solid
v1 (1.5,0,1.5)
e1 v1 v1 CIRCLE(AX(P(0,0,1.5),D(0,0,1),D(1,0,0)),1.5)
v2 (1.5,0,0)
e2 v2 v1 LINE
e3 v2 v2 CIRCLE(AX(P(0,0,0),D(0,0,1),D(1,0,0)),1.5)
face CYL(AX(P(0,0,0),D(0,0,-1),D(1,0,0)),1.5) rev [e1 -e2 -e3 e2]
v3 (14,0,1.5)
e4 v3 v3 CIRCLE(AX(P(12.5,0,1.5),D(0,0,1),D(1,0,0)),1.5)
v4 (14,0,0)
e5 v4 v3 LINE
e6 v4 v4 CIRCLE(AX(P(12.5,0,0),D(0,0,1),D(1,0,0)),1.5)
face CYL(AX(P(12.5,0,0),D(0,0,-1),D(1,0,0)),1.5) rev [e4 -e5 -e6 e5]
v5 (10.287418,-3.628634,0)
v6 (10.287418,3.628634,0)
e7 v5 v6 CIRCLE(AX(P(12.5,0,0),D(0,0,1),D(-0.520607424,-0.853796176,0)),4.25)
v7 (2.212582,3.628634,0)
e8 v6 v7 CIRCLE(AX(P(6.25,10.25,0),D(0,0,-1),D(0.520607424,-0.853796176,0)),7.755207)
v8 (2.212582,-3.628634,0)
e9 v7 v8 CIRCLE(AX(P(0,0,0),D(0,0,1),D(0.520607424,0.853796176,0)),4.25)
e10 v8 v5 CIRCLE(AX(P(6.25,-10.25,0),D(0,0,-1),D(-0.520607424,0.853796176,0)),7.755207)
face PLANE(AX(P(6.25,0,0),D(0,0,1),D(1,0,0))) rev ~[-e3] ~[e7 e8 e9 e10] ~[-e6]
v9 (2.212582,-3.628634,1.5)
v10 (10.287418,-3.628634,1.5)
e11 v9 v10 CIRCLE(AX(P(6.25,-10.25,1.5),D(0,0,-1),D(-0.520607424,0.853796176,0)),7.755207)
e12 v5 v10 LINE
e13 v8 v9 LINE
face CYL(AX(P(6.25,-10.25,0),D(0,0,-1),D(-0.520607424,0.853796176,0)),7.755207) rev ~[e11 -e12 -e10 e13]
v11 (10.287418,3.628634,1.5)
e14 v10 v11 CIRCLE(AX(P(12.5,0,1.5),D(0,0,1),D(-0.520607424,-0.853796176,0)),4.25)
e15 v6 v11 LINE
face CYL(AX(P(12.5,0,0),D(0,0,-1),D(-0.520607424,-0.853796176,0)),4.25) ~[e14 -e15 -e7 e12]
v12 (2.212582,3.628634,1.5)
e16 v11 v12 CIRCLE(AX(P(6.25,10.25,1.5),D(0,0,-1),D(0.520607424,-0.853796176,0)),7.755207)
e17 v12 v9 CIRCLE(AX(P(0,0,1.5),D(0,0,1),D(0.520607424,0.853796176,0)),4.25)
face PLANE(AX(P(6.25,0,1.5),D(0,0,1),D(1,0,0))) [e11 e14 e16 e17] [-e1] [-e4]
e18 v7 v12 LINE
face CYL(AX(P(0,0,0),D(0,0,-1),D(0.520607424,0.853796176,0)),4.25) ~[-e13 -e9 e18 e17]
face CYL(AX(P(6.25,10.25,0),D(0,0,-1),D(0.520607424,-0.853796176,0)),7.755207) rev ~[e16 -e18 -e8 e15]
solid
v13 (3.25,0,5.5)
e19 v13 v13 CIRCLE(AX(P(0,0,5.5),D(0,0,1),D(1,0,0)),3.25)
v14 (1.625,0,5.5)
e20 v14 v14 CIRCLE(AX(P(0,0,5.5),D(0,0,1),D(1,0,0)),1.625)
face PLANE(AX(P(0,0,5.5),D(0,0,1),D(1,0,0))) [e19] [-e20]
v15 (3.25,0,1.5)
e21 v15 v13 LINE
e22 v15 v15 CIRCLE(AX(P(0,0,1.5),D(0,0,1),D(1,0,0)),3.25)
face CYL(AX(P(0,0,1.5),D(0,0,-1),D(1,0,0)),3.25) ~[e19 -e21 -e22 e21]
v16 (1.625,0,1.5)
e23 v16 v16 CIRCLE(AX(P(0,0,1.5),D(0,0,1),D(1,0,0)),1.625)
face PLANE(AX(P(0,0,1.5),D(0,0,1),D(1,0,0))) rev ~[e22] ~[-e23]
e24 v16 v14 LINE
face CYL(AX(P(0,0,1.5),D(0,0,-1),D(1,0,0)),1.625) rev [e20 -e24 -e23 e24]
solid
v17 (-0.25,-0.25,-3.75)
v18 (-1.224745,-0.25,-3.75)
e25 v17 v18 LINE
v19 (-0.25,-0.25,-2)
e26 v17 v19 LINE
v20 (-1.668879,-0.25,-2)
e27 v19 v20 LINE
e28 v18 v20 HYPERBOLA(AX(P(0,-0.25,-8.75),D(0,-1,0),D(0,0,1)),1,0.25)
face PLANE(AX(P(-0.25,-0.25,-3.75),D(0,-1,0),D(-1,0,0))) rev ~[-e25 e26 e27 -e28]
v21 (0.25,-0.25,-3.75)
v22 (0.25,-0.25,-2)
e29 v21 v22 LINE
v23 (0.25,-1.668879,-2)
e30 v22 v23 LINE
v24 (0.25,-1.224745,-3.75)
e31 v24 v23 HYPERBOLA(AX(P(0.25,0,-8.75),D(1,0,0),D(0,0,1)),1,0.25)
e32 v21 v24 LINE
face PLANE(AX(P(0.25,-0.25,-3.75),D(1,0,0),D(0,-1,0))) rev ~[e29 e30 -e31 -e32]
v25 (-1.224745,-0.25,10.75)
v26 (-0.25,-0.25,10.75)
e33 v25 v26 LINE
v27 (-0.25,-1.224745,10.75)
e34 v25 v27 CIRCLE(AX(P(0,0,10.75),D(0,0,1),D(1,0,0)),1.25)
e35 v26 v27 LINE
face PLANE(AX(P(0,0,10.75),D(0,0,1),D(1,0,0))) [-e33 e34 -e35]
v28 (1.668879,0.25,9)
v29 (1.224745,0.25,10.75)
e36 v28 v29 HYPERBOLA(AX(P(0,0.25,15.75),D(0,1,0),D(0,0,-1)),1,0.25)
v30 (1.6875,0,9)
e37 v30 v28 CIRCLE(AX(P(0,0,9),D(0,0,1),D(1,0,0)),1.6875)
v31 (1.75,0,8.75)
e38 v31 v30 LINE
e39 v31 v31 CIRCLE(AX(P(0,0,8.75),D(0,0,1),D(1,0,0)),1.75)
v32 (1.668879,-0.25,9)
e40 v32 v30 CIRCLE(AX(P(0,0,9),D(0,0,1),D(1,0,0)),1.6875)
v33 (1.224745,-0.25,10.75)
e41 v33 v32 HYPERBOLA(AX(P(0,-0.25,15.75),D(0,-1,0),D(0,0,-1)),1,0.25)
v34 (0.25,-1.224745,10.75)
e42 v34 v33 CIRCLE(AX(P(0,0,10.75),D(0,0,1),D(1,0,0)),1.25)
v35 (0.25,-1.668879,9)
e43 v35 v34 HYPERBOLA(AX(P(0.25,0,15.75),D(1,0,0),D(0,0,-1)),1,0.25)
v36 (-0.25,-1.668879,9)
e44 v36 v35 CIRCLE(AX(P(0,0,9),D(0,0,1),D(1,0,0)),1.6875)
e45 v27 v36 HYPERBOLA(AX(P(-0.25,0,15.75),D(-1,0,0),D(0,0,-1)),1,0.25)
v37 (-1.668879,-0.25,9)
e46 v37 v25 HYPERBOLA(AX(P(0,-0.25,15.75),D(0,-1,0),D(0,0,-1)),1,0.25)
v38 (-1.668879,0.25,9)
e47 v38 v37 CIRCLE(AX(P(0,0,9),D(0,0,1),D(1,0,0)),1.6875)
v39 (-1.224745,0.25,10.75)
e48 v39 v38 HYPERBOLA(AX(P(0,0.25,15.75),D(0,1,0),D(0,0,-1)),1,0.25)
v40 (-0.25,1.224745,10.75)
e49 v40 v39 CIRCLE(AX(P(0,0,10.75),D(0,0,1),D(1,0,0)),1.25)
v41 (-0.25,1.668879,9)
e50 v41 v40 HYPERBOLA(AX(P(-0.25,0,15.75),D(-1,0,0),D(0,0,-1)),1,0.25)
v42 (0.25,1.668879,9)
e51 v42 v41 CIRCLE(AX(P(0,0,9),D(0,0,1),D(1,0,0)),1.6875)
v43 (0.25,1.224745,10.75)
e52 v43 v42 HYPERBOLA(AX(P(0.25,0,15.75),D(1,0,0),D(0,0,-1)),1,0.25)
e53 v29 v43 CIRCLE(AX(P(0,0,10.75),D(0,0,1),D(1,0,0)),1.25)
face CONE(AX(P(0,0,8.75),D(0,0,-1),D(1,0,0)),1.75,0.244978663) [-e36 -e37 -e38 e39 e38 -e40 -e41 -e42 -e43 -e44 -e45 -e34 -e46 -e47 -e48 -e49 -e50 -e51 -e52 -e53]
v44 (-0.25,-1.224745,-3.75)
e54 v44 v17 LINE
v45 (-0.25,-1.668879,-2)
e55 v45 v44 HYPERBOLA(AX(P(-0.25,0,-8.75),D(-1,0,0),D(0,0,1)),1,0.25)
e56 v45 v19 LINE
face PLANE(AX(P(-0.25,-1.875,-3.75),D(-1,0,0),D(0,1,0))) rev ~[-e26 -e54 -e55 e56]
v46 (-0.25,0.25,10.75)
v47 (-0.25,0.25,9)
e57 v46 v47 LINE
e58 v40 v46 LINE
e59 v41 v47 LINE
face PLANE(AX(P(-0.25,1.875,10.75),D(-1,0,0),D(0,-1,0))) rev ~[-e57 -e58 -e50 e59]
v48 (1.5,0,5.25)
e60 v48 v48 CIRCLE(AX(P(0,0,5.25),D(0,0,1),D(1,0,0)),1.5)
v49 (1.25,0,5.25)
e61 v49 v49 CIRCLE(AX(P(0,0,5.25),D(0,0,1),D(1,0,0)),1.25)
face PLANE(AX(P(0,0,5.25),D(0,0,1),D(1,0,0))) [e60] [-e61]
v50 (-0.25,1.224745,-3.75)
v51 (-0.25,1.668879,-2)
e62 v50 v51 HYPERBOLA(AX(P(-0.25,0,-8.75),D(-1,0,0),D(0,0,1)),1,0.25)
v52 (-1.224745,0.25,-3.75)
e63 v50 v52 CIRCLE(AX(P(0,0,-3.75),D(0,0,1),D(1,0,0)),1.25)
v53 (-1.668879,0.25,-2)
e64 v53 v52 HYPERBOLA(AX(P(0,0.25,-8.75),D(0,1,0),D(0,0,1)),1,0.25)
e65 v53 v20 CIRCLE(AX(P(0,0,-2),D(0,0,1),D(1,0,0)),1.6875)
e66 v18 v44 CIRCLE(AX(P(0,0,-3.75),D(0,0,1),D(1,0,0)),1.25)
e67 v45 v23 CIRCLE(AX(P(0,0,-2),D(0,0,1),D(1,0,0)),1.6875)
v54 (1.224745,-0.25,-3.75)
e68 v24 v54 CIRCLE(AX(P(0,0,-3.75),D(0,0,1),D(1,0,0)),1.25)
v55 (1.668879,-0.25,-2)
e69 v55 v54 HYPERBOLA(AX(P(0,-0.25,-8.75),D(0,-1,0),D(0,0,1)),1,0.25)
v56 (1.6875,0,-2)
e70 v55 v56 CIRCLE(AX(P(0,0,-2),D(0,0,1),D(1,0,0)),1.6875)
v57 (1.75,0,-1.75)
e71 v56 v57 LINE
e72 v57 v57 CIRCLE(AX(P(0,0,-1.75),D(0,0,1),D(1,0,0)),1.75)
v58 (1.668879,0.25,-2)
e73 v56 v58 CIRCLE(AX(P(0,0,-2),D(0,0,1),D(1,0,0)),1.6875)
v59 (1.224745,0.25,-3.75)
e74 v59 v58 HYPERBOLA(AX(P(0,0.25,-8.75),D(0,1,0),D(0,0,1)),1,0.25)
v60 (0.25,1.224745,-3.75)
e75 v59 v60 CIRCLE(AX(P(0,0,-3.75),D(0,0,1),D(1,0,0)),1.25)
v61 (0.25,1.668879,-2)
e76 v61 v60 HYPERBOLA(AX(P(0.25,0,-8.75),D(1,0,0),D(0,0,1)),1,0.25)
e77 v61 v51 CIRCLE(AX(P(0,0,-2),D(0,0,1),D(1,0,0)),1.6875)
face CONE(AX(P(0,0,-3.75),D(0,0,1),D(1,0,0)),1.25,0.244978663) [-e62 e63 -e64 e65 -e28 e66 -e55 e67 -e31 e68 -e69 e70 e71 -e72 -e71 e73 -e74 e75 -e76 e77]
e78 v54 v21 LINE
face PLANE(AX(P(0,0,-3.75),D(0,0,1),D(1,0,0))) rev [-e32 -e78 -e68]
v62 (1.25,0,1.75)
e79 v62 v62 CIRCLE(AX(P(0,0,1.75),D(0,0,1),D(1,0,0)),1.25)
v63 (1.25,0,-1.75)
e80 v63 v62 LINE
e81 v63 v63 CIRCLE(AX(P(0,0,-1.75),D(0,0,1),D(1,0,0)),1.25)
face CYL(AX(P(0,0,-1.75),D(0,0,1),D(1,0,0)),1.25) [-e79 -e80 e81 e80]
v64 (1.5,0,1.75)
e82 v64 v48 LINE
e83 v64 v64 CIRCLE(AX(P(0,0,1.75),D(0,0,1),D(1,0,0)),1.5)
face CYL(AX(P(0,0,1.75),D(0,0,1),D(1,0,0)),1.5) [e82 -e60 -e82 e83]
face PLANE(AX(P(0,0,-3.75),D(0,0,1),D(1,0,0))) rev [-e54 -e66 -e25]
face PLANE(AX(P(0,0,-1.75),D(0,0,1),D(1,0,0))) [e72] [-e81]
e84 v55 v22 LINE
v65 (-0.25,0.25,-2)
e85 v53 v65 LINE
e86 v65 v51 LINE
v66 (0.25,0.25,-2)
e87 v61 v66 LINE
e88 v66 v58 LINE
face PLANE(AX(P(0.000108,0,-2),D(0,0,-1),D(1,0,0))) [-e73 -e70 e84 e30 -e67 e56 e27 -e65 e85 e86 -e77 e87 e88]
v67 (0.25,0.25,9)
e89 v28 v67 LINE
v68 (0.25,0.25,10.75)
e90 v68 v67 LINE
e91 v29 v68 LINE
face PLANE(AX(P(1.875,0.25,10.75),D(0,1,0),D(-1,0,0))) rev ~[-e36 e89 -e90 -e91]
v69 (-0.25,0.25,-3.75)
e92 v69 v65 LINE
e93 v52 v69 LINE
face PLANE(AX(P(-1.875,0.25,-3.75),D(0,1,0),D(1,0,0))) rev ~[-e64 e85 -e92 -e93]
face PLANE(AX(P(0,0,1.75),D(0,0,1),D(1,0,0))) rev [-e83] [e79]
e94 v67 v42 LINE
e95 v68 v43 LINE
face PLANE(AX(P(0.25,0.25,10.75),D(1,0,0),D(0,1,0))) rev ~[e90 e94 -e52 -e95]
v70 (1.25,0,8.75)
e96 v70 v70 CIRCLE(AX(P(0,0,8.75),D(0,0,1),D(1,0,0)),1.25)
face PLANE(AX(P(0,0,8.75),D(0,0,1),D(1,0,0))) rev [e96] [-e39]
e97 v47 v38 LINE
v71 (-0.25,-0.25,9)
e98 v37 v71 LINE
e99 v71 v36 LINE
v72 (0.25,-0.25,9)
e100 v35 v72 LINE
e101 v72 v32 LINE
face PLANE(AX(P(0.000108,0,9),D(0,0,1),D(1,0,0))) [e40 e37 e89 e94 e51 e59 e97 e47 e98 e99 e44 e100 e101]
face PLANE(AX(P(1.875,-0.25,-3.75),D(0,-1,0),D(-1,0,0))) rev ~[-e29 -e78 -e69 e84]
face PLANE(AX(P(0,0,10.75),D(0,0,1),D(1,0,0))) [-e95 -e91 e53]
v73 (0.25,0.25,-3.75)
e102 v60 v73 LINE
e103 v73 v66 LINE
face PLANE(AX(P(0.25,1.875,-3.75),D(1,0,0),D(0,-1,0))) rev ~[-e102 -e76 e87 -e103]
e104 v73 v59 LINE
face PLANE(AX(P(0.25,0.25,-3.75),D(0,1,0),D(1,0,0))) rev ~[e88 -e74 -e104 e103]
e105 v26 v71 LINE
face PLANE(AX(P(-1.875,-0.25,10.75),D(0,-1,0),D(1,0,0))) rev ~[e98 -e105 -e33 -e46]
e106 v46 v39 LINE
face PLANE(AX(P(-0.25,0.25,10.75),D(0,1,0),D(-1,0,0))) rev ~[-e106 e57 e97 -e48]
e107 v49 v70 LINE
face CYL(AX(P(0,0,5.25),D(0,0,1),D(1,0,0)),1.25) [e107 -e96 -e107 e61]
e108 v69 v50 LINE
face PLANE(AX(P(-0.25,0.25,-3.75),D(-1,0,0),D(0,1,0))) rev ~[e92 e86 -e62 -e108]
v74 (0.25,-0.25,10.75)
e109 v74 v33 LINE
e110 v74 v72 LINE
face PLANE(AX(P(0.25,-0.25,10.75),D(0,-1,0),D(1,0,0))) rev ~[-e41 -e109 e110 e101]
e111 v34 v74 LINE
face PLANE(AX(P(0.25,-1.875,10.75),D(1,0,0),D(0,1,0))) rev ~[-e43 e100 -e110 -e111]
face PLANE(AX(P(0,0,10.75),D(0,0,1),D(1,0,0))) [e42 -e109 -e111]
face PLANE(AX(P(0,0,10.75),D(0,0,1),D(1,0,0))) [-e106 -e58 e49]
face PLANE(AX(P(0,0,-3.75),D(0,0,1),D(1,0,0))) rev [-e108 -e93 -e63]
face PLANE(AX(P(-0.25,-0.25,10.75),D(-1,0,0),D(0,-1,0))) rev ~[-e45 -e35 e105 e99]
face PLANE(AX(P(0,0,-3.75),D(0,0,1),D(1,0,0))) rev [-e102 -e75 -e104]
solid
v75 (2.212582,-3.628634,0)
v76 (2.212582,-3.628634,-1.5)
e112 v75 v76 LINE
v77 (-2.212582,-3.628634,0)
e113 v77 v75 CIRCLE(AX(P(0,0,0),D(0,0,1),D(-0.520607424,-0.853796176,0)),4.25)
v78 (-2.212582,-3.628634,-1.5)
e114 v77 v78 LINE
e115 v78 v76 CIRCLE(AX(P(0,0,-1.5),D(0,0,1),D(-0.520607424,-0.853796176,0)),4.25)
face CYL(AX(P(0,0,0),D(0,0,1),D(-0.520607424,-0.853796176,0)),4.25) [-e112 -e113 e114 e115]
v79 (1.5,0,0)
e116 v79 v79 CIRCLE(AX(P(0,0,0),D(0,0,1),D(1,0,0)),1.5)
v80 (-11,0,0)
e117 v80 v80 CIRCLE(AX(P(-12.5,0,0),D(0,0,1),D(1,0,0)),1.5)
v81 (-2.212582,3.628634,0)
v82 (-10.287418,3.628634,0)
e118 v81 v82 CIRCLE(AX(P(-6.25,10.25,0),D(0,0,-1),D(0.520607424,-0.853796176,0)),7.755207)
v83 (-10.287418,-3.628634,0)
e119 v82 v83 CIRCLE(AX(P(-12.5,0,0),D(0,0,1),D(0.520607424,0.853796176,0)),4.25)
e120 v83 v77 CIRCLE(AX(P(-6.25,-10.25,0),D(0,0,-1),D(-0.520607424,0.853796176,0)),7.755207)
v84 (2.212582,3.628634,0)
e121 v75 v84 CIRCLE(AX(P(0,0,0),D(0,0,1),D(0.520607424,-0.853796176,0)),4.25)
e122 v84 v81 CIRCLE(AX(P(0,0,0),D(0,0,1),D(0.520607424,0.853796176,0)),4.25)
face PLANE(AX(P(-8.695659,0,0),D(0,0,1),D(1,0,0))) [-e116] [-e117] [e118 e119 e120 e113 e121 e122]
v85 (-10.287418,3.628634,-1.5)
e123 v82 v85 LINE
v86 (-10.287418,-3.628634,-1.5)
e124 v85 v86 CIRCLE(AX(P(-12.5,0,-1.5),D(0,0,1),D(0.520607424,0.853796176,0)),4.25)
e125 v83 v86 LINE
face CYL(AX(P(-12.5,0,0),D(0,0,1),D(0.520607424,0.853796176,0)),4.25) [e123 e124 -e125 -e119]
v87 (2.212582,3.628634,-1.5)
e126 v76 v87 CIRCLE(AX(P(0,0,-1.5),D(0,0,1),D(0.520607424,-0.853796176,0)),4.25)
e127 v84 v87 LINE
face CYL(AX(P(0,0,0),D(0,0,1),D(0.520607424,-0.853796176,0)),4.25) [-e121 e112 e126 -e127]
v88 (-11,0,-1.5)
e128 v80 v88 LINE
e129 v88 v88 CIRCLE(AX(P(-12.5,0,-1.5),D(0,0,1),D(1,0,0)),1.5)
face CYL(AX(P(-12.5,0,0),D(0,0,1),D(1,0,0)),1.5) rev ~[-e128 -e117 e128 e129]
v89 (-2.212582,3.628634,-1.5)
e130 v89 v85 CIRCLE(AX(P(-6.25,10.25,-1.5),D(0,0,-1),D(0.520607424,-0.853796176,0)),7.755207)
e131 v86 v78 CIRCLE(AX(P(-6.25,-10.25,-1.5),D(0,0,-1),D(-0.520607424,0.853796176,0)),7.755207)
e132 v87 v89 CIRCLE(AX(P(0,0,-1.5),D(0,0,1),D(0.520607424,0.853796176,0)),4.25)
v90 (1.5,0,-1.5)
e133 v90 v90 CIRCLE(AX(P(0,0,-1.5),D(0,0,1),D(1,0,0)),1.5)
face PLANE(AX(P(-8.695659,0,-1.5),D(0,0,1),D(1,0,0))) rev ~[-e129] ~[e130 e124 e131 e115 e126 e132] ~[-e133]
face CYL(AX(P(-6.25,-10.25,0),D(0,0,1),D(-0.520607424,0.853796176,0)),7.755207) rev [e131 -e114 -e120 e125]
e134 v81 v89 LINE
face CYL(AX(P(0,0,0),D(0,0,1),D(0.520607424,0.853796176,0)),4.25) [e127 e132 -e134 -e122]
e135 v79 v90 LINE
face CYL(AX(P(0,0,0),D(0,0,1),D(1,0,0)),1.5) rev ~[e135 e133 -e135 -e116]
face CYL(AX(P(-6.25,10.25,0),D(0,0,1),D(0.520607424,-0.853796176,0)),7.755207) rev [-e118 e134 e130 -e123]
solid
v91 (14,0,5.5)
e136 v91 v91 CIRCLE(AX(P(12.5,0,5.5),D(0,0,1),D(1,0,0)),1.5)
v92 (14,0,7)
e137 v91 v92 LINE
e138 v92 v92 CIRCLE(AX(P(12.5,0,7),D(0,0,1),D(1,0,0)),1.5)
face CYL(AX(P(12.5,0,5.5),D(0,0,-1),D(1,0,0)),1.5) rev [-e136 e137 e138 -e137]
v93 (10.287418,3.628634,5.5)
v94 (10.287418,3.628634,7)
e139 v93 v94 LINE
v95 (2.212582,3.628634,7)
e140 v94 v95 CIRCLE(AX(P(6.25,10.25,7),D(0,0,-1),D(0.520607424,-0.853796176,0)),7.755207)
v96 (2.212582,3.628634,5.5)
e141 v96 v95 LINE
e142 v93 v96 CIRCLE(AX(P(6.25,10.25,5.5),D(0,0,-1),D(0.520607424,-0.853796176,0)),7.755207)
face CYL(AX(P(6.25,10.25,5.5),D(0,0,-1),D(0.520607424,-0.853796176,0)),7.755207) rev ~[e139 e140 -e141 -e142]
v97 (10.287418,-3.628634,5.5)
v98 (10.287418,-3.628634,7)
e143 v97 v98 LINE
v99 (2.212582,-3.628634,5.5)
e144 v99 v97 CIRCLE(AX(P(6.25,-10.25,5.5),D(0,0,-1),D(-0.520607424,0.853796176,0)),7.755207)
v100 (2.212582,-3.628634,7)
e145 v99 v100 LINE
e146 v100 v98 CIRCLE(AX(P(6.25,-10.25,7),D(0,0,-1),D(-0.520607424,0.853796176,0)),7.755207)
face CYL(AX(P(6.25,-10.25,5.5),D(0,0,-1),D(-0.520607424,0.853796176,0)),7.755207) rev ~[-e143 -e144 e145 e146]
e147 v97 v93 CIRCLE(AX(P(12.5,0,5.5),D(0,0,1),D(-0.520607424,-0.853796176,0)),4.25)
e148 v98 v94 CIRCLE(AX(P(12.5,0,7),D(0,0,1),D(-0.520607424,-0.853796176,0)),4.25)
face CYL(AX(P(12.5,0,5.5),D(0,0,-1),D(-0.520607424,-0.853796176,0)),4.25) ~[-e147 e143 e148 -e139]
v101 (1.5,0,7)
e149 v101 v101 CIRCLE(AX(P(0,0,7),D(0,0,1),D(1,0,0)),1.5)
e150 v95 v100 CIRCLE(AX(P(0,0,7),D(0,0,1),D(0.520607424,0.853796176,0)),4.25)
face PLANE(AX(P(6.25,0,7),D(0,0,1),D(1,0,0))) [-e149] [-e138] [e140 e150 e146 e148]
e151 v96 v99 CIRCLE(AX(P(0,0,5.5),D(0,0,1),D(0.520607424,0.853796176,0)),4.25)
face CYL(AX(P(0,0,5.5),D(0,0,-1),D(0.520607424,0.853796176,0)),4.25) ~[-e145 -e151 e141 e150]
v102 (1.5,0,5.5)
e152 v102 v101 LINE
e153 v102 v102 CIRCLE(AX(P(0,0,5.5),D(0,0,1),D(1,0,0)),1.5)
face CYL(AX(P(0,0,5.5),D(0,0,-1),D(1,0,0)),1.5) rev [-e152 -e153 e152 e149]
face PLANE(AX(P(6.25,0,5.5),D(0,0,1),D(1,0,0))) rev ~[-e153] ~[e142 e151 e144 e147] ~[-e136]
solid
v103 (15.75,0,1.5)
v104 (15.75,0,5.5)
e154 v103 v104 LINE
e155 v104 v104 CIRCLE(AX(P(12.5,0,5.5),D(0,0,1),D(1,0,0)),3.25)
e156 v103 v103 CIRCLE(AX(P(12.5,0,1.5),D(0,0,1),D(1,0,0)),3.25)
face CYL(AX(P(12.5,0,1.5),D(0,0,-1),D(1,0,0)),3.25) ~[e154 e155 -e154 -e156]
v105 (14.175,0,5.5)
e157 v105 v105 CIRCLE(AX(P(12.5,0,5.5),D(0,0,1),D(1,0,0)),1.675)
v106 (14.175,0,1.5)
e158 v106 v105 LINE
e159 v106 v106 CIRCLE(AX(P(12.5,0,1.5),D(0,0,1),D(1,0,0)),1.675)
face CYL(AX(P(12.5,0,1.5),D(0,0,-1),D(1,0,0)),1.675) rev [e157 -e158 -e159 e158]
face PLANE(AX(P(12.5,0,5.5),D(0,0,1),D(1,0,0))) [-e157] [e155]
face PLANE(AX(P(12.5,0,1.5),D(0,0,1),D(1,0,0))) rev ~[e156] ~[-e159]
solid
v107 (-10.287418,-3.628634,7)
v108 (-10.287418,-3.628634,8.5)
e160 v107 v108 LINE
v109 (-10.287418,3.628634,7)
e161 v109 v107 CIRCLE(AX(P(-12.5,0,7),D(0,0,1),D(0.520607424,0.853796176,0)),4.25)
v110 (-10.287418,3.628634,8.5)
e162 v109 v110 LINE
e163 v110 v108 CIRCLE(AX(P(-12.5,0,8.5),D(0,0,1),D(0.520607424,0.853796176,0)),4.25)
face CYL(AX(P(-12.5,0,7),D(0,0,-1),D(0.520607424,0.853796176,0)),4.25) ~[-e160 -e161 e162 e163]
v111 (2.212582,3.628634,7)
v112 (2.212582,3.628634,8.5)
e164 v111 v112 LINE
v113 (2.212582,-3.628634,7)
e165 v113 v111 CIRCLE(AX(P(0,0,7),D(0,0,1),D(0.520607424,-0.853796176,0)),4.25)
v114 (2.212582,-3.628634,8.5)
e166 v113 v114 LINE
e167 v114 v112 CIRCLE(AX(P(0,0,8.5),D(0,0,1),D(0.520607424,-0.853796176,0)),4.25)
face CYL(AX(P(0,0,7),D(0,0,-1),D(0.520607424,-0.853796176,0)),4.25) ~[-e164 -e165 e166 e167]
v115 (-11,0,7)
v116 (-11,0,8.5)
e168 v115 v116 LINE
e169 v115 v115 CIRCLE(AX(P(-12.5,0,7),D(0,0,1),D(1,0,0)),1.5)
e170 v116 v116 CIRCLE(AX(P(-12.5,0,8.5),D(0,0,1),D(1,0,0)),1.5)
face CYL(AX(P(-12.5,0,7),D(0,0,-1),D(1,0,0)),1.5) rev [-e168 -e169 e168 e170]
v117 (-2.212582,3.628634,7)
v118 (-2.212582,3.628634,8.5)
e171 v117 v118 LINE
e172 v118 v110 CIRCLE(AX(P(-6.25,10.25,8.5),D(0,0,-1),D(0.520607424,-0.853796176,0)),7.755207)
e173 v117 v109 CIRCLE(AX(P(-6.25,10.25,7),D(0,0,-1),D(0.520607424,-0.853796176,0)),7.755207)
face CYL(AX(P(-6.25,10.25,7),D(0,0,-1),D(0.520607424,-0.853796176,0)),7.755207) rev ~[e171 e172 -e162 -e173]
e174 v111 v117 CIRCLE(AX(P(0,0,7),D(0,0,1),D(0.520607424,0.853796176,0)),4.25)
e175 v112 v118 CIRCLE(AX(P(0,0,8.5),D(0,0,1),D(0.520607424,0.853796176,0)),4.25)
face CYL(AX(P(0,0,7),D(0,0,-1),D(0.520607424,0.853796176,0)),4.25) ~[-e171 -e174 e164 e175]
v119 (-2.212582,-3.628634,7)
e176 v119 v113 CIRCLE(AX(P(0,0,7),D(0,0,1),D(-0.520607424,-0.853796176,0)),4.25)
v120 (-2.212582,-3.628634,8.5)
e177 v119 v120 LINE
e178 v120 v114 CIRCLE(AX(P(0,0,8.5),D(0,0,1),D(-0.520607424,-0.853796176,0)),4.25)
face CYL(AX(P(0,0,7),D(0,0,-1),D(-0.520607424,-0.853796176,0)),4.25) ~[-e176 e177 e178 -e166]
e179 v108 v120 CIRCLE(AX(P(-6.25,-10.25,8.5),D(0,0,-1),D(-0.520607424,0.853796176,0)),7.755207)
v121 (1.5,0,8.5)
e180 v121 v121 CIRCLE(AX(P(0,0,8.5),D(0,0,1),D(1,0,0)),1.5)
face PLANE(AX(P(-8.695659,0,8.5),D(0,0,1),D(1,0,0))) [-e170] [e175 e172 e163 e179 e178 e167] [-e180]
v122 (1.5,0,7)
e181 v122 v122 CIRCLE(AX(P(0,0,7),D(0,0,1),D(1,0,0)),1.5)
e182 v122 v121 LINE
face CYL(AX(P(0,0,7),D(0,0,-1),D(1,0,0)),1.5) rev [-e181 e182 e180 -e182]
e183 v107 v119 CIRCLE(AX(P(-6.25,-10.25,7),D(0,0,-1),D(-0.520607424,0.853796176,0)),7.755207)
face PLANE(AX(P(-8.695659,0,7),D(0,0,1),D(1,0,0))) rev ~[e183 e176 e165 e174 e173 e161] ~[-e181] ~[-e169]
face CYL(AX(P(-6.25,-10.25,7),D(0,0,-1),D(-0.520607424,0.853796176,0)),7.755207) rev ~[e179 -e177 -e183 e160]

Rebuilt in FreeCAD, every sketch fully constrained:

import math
import FreeCAD as App
import Part
import Sketcher

V = App.Vector

doc = App.newDocument("Part")
body = doc.addObject("PartDesign::Body", "Body")

# Sketch on XY plane
sketch1 = body.newObject("Sketcher::SketchObject", "Sketch")
sketch1.AttachmentSupport = (doc.getObject("XY_Plane"), [""])
sketch1.MapMode = "FlatFace"
sketch1.addGeometry(Part.ArcOfCircle(Part.Circle(V(6.2, 10.3, 0), V(0, 0, 1), 7.8), math.radians(-121), math.radians(-59)), False)
sketch1.addGeometry(Part.ArcOfCircle(Part.Circle(V(0, 0, 0), V(0, 0, 1), 4.2), math.radians(59), math.radians(301)), False)
sketch1.addGeometry(Part.ArcOfCircle(Part.Circle(V(6.2, -10.3, 0), V(0, 0, 1), 7.8), math.radians(59), math.radians(121)), False)
sketch1.addGeometry(Part.ArcOfCircle(Part.Circle(V(12.5, 0, 0), V(0, 0, 1), 4.2), math.radians(-121), math.radians(121)), False)
sketch1.addGeometry(Part.Circle(V(0, 0, 0), V(0, 0, 1), 1.5), False)
sketch1.addGeometry(Part.Circle(V(12.5, 0, 0), V(0, 0, 1), 1.5), False)
sketch1.addConstraint(Sketcher.Constraint("Tangent", 0, 1, 1, 1))
sketch1.addConstraint(Sketcher.Constraint("Tangent", 1, 2, 2, 2))
sketch1.addConstraint(Sketcher.Constraint("Tangent", 2, 1, 3, 1))
sketch1.addConstraint(Sketcher.Constraint("Tangent", 3, 2, 0, 2))
sketch1.addConstraint(Sketcher.Constraint("Coincident", 1, 3, -1, 1))
sketch1.addConstraint(Sketcher.Constraint("Coincident", 4, 3, -1, 1))
sketch1.addConstraint(Sketcher.Constraint("Coincident", 5, 3, 3, 3))
sketch1.addConstraint(Sketcher.Constraint("Equal", 0, 2))
sketch1.addConstraint(Sketcher.Constraint("Equal", 1, 3))
sketch1.addConstraint(Sketcher.Constraint("Equal", 4, 5))
sketch1.addConstraint(Sketcher.Constraint("PointOnObject", 3, 3, -1))
sketch1.addConstraint(Sketcher.Constraint("Diameter", 4, 3.0))
sketch1.addConstraint(Sketcher.Constraint("Radius", 1, 4.25))
sketch1.addConstraint(Sketcher.Constraint("DistanceX", -1, 1, 3, 3, 12.5))
sketch1.addConstraint(Sketcher.Constraint("DistanceY", 2, 3, 0, 3, 20.5))
pad1 = body.newObject("PartDesign::Pad", "Pad")
pad1.Profile = sketch1
pad1.Length = 1.5
body2 = doc.addObject("PartDesign::Body", "Body001")

# Sketch on XY plane
sketch2 = body2.newObject("Sketcher::SketchObject", "Sketch001")
sketch2.AttachmentSupport = (doc.getObject("XY_Plane001"), [""])
sketch2.MapMode = "FlatFace"
sketch2.AttachmentOffset = App.Placement(V(0, 0, 1.5), App.Rotation())
sketch2.addGeometry(Part.Circle(V(0, 0, 0), V(0, 0, 1), 3.2), False)
sketch2.addGeometry(Part.Circle(V(0, 0, 0), V(0, 0, 1), 1.6), False)
sketch2.addConstraint(Sketcher.Constraint("Coincident", 0, 3, -1, 1))
sketch2.addConstraint(Sketcher.Constraint("Coincident", 1, 3, -1, 1))
sketch2.addConstraint(Sketcher.Constraint("Diameter", 0, 6.5))
sketch2.addConstraint(Sketcher.Constraint("Diameter", 1, 3.25))
pad2 = body2.newObject("PartDesign::Pad", "Pad001")
pad2.Profile = sketch2
pad2.Length = 4
body3 = doc.addObject("PartDesign::Body", "Body002")

# Sketch on XY plane
sketch3 = body3.newObject("Sketcher::SketchObject", "Sketch002")
sketch3.AttachmentSupport = (doc.getObject("XY_Plane002"), [""])
sketch3.MapMode = "FlatFace"
sketch3.AttachmentOffset = App.Placement(V(0, 0, 1.5), App.Rotation())
sketch3.addGeometry(Part.Circle(V(12.5, 0, 0), V(0, 0, 1), 3.2), False)
sketch3.addGeometry(Part.Circle(V(12.5, 0, 0), V(0, 0, 1), 1.7), False)
sketch3.addConstraint(Sketcher.Constraint("Coincident", 1, 3, 0, 3))
sketch3.addConstraint(Sketcher.Constraint("PointOnObject", 0, 3, -1))
sketch3.addConstraint(Sketcher.Constraint("Diameter", 0, 6.5))
sketch3.addConstraint(Sketcher.Constraint("Diameter", 1, 3.35))
sketch3.addConstraint(Sketcher.Constraint("DistanceX", -1, 1, 0, 3, 12.5))
pad3 = body3.newObject("PartDesign::Pad", "Pad002")
pad3.Profile = sketch3
pad3.Length = 4
body4 = doc.addObject("PartDesign::Body", "Body003")

# Sketch on XY plane
sketch4 = body4.newObject("Sketcher::SketchObject", "Sketch003")
sketch4.AttachmentSupport = (doc.getObject("XY_Plane003"), [""])
sketch4.MapMode = "FlatFace"
sketch4.AttachmentOffset = App.Placement(V(0, 0, 5.5), App.Rotation())
sketch4.addGeometry(Part.ArcOfCircle(Part.Circle(V(6.2, 10.3, 0), V(0, 0, 1), 7.8), math.radians(-121), math.radians(-59)), False)
sketch4.addGeometry(Part.ArcOfCircle(Part.Circle(V(0, 0, 0), V(0, 0, 1), 4.2), math.radians(59), math.radians(301)), False)
sketch4.addGeometry(Part.ArcOfCircle(Part.Circle(V(6.2, -10.3, 0), V(0, 0, 1), 7.8), math.radians(59), math.radians(121)), False)
sketch4.addGeometry(Part.ArcOfCircle(Part.Circle(V(12.5, 0, 0), V(0, 0, 1), 4.2), math.radians(-121), math.radians(121)), False)
sketch4.addGeometry(Part.Circle(V(0, 0, 0), V(0, 0, 1), 1.5), False)
sketch4.addGeometry(Part.Circle(V(12.5, 0, 0), V(0, 0, 1), 1.5), False)
sketch4.addConstraint(Sketcher.Constraint("Tangent", 0, 1, 1, 1))
sketch4.addConstraint(Sketcher.Constraint("Tangent", 1, 2, 2, 2))
sketch4.addConstraint(Sketcher.Constraint("Tangent", 2, 1, 3, 1))
sketch4.addConstraint(Sketcher.Constraint("Tangent", 3, 2, 0, 2))
sketch4.addConstraint(Sketcher.Constraint("Coincident", 1, 3, -1, 1))
sketch4.addConstraint(Sketcher.Constraint("Coincident", 4, 3, -1, 1))
sketch4.addConstraint(Sketcher.Constraint("Coincident", 5, 3, 3, 3))
sketch4.addConstraint(Sketcher.Constraint("Equal", 0, 2))
sketch4.addConstraint(Sketcher.Constraint("Equal", 1, 3))
sketch4.addConstraint(Sketcher.Constraint("Equal", 4, 5))
sketch4.addConstraint(Sketcher.Constraint("PointOnObject", 3, 3, -1))
sketch4.addConstraint(Sketcher.Constraint("Diameter", 4, 3.0))
sketch4.addConstraint(Sketcher.Constraint("Radius", 1, 4.25))
sketch4.addConstraint(Sketcher.Constraint("DistanceX", -1, 1, 3, 3, 12.5))
sketch4.addConstraint(Sketcher.Constraint("DistanceY", 2, 3, 0, 3, 20.5))
pad4 = body4.newObject("PartDesign::Pad", "Pad003")
pad4.Profile = sketch4
pad4.Length = 1.5
body5 = doc.addObject("PartDesign::Body", "Body004")

# Sketch on XY plane
sketch5 = body5.newObject("Sketcher::SketchObject", "Sketch004")
sketch5.AttachmentSupport = (doc.getObject("XY_Plane004"), [""])
sketch5.MapMode = "FlatFace"
sketch5.AttachmentOffset = App.Placement(V(0, 0, 7), App.Rotation())
sketch5.addGeometry(Part.ArcOfCircle(Part.Circle(V(-6.2, 10.3, 0), V(0, 0, 1), 7.8), math.radians(-121), math.radians(-59)), False)
sketch5.addGeometry(Part.ArcOfCircle(Part.Circle(V(-12.5, 0, 0), V(0, 0, 1), 4.2), math.radians(59), math.radians(301)), False)
sketch5.addGeometry(Part.ArcOfCircle(Part.Circle(V(-6.2, -10.3, 0), V(0, 0, 1), 7.8), math.radians(59), math.radians(121)), False)
sketch5.addGeometry(Part.ArcOfCircle(Part.Circle(V(0, 0, 0), V(0, 0, 1), 4.2), math.radians(-121), math.radians(-59)), False)
sketch5.addGeometry(Part.ArcOfCircle(Part.Circle(V(0, 0, 0), V(0, 0, 1), 4.2), math.radians(-59), math.radians(59)), False)
sketch5.addGeometry(Part.ArcOfCircle(Part.Circle(V(0, 0, 0), V(0, 0, 1), 4.2), math.radians(59), math.radians(121)), False)
sketch5.addGeometry(Part.Circle(V(-12.5, 0, 0), V(0, 0, 1), 1.5), False)
sketch5.addGeometry(Part.Circle(V(0, 0, 0), V(0, 0, 1), 1.5), False)
sketch5.addConstraint(Sketcher.Constraint("Tangent", 0, 1, 1, 1))
sketch5.addConstraint(Sketcher.Constraint("Tangent", 1, 2, 2, 2))
sketch5.addConstraint(Sketcher.Constraint("Tangent", 2, 1, 3, 1))
sketch5.addConstraint(Sketcher.Constraint("Tangent", 3, 2, 4, 1))
sketch5.addConstraint(Sketcher.Constraint("Tangent", 4, 2, 5, 1))
sketch5.addConstraint(Sketcher.Constraint("Tangent", 5, 2, 0, 2))
sketch5.addConstraint(Sketcher.Constraint("Coincident", 3, 3, -1, 1))
sketch5.addConstraint(Sketcher.Constraint("Coincident", 5, 3, -1, 1))
sketch5.addConstraint(Sketcher.Constraint("Coincident", 7, 3, -1, 1))
sketch5.addConstraint(Sketcher.Constraint("Coincident", 6, 3, 1, 3))
sketch5.addConstraint(Sketcher.Constraint("Equal", 0, 2))
sketch5.addConstraint(Sketcher.Constraint("Equal", 1, 3))
sketch5.addConstraint(Sketcher.Constraint("Equal", 6, 7))
sketch5.addConstraint(Sketcher.Constraint("PointOnObject", 1, 3, -1))
sketch5.addConstraint(Sketcher.Constraint("Horizontal", 2, 1, 3, 2))
sketch5.addConstraint(Sketcher.Constraint("Horizontal", 0, 1, 4, 2))
sketch5.addConstraint(Sketcher.Constraint("Diameter", 6, 3.0))
sketch5.addConstraint(Sketcher.Constraint("Radius", 1, 4.25))
sketch5.addConstraint(Sketcher.Constraint("DistanceX", 1, 3, -1, 1, 12.5))
sketch5.addConstraint(Sketcher.Constraint("DistanceY", 2, 3, 0, 3, 20.5))
pad5 = body5.newObject("PartDesign::Pad", "Pad004")
pad5.Profile = sketch5
pad5.Length = 1.5
body6 = doc.addObject("PartDesign::Body", "Body005")

# Sketch on XY plane
sketch6 = body6.newObject("Sketcher::SketchObject", "Sketch005")
sketch6.AttachmentSupport = (doc.getObject("XY_Plane005"), [""])
sketch6.MapMode = "FlatFace"
sketch6.addGeometry(Part.ArcOfCircle(Part.Circle(V(-6.2, 10.3, 0), V(0, 0, 1), 7.8), math.radians(-121), math.radians(-59)), False)
sketch6.addGeometry(Part.ArcOfCircle(Part.Circle(V(-12.5, 0, 0), V(0, 0, 1), 4.2), math.radians(59), math.radians(301)), False)
sketch6.addGeometry(Part.ArcOfCircle(Part.Circle(V(-6.2, -10.3, 0), V(0, 0, 1), 7.8), math.radians(59), math.radians(121)), False)
sketch6.addGeometry(Part.ArcOfCircle(Part.Circle(V(0, 0, 0), V(0, 0, 1), 4.2), math.radians(-121), math.radians(-59)), False)
sketch6.addGeometry(Part.ArcOfCircle(Part.Circle(V(0, 0, 0), V(0, 0, 1), 4.2), math.radians(-59), math.radians(59)), False)
sketch6.addGeometry(Part.ArcOfCircle(Part.Circle(V(0, 0, 0), V(0, 0, 1), 4.2), math.radians(59), math.radians(121)), False)
sketch6.addGeometry(Part.Circle(V(-12.5, 0, 0), V(0, 0, 1), 1.5), False)
sketch6.addGeometry(Part.Circle(V(0, 0, 0), V(0, 0, 1), 1.5), False)
sketch6.addConstraint(Sketcher.Constraint("Tangent", 0, 1, 1, 1))
sketch6.addConstraint(Sketcher.Constraint("Tangent", 1, 2, 2, 2))
sketch6.addConstraint(Sketcher.Constraint("Tangent", 2, 1, 3, 1))
sketch6.addConstraint(Sketcher.Constraint("Tangent", 3, 2, 4, 1))
sketch6.addConstraint(Sketcher.Constraint("Tangent", 4, 2, 5, 1))
sketch6.addConstraint(Sketcher.Constraint("Tangent", 5, 2, 0, 2))
sketch6.addConstraint(Sketcher.Constraint("Coincident", 3, 3, -1, 1))
sketch6.addConstraint(Sketcher.Constraint("Coincident", 5, 3, -1, 1))
sketch6.addConstraint(Sketcher.Constraint("Coincident", 7, 3, -1, 1))
sketch6.addConstraint(Sketcher.Constraint("Coincident", 6, 3, 1, 3))
sketch6.addConstraint(Sketcher.Constraint("Equal", 0, 2))
sketch6.addConstraint(Sketcher.Constraint("Equal", 1, 3))
sketch6.addConstraint(Sketcher.Constraint("Equal", 6, 7))
sketch6.addConstraint(Sketcher.Constraint("PointOnObject", 1, 3, -1))
sketch6.addConstraint(Sketcher.Constraint("Horizontal", 2, 1, 3, 2))
sketch6.addConstraint(Sketcher.Constraint("Horizontal", 0, 1, 4, 2))
sketch6.addConstraint(Sketcher.Constraint("Diameter", 6, 3.0))
sketch6.addConstraint(Sketcher.Constraint("Radius", 1, 4.25))
sketch6.addConstraint(Sketcher.Constraint("DistanceX", 1, 3, -1, 1, 12.5))
sketch6.addConstraint(Sketcher.Constraint("DistanceY", 2, 3, 0, 3, 20.5))
pad6 = body6.newObject("PartDesign::Pad", "Pad005")
pad6.Profile = sketch6
pad6.Length = 1.5
pad6.Reversed = True
body7 = doc.addObject("PartDesign::Body", "Body006")

# Sketch on XZ plane
sketch7 = body7.newObject("Sketcher::SketchObject", "Sketch006")
sketch7.AttachmentSupport = (doc.getObject("XZ_Plane006"), [""])
sketch7.MapMode = "FlatFace"
sketch7.addGeometry(Part.LineSegment(V(1.25, 10.75, 0), V(0, 10.75, 0)), False)
sketch7.addGeometry(Part.LineSegment(V(0, 10.75, 0), V(0, -3.75, 0)), False)
sketch7.addGeometry(Part.LineSegment(V(0, -3.75, 0), V(1.25, -3.75, 0)), False)
sketch7.addGeometry(Part.LineSegment(V(1.25, -3.75, 0), V(1.75, -1.75, 0)), False)
sketch7.addGeometry(Part.LineSegment(V(1.75, -1.75, 0), V(1.25, -1.75, 0)), False)
sketch7.addGeometry(Part.LineSegment(V(1.25, -1.75, 0), V(1.25, 1.75, 0)), False)
sketch7.addGeometry(Part.LineSegment(V(1.25, 1.75, 0), V(1.5, 1.75, 0)), False)
sketch7.addGeometry(Part.LineSegment(V(1.5, 1.75, 0), V(1.5, 5.25, 0)), False)
sketch7.addGeometry(Part.LineSegment(V(1.5, 5.25, 0), V(1.25, 5.25, 0)), False)
sketch7.addGeometry(Part.LineSegment(V(1.25, 5.25, 0), V(1.25, 8.75, 0)), False)
sketch7.addGeometry(Part.LineSegment(V(1.25, 8.75, 0), V(1.75, 8.75, 0)), False)
sketch7.addGeometry(Part.LineSegment(V(1.75, 8.75, 0), V(1.25, 10.75, 0)), False)
sketch7.addConstraint(Sketcher.Constraint("Coincident", 0, 2, 1, 1))
sketch7.addConstraint(Sketcher.Constraint("Coincident", 1, 2, 2, 1))
sketch7.addConstraint(Sketcher.Constraint("Coincident", 2, 2, 3, 1))
sketch7.addConstraint(Sketcher.Constraint("Coincident", 3, 2, 4, 1))
sketch7.addConstraint(Sketcher.Constraint("Coincident", 4, 2, 5, 1))
sketch7.addConstraint(Sketcher.Constraint("Coincident", 5, 2, 6, 1))
sketch7.addConstraint(Sketcher.Constraint("Coincident", 6, 2, 7, 1))
sketch7.addConstraint(Sketcher.Constraint("Coincident", 7, 2, 8, 1))
sketch7.addConstraint(Sketcher.Constraint("Coincident", 8, 2, 9, 1))
sketch7.addConstraint(Sketcher.Constraint("Coincident", 9, 2, 10, 1))
sketch7.addConstraint(Sketcher.Constraint("Coincident", 10, 2, 11, 1))
sketch7.addConstraint(Sketcher.Constraint("Coincident", 11, 2, 0, 1))
sketch7.addConstraint(Sketcher.Constraint("Horizontal", 0))
sketch7.addConstraint(Sketcher.Constraint("Vertical", 1))
sketch7.addConstraint(Sketcher.Constraint("Horizontal", 2))
sketch7.addConstraint(Sketcher.Constraint("Horizontal", 4))
sketch7.addConstraint(Sketcher.Constraint("Vertical", 5))
sketch7.addConstraint(Sketcher.Constraint("Horizontal", 6))
sketch7.addConstraint(Sketcher.Constraint("Vertical", 7))
sketch7.addConstraint(Sketcher.Constraint("Horizontal", 8))
sketch7.addConstraint(Sketcher.Constraint("Vertical", 9))
sketch7.addConstraint(Sketcher.Constraint("Horizontal", 10))
sketch7.addConstraint(Sketcher.Constraint("PointOnObject", 0, 2, -2))
sketch7.addConstraint(Sketcher.Constraint("Vertical", 2, 2, 4, 2))
sketch7.addConstraint(Sketcher.Constraint("Vertical", 5, 2, 8, 2))
sketch7.addConstraint(Sketcher.Constraint("Vertical", 3, 2, 10, 2))
sketch7.addConstraint(Sketcher.Constraint("Vertical", 9, 2, 11, 2))
sketch7.addConstraint(Sketcher.Constraint("Equal", 5, 7))
sketch7.addConstraint(Sketcher.Constraint("Equal", 7, 9))
sketch7.addConstraint(Sketcher.Constraint("Equal", 3, 11))
sketch7.addConstraint(Sketcher.Constraint("DistanceX", 4, 2, 4, 1, 0.5))
sketch7.addConstraint(Sketcher.Constraint("DistanceY", 1, 2, 1, 1, 14.5))
sketch7.addConstraint(Sketcher.Constraint("DistanceY", 5, 1, 5, 2, 3.5))
sketch7.addConstraint(Sketcher.Constraint("DistanceX", 0, 2, 0, 1, 1.25))
sketch7.addConstraint(Sketcher.Constraint("DistanceX", 6, 1, 6, 2, 0.25))
sketch7.addConstraint(Sketcher.Constraint("DistanceY", -1, 1, 0, 2, 10.75))
revolution = body7.newObject("PartDesign::Revolution", "Revolution")
revolution.Profile = sketch7
revolution.ReferenceAxis = (sketch7, ["V_Axis"])
revolution.Angle = 360
body8 = doc.addObject("PartDesign::Body", "Body007")

# Sketch on XY plane
sketch8 = body8.newObject("Sketcher::SketchObject", "Sketch007")
sketch8.AttachmentSupport = (doc.getObject("XY_Plane007"), [""])
sketch8.MapMode = "FlatFace"
sketch8.AttachmentOffset = App.Placement(V(0, 0, 10.75), App.Rotation())
sketch8.addGeometry(Part.LineSegment(V(0.2, 0.2, 0), V(0.2, 1.9, 0)), False)
sketch8.addGeometry(Part.LineSegment(V(0.2, 1.9, 0), V(-0.2, 1.9, 0)), False)
sketch8.addGeometry(Part.LineSegment(V(-0.2, 1.9, 0), V(-0.2, 0.2, 0)), False)
sketch8.addGeometry(Part.LineSegment(V(-0.2, 0.2, 0), V(-1.9, 0.2, 0)), False)
sketch8.addGeometry(Part.LineSegment(V(-1.9, 0.2, 0), V(-1.9, -0.2, 0)), False)
sketch8.addGeometry(Part.LineSegment(V(-1.9, -0.2, 0), V(-0.2, -0.2, 0)), False)
sketch8.addGeometry(Part.LineSegment(V(-0.2, -0.2, 0), V(-0.2, -1.9, 0)), False)
sketch8.addGeometry(Part.LineSegment(V(-0.2, -1.9, 0), V(0.2, -1.9, 0)), False)
sketch8.addGeometry(Part.LineSegment(V(0.2, -1.9, 0), V(0.2, -0.2, 0)), False)
sketch8.addGeometry(Part.LineSegment(V(0.2, -0.2, 0), V(1.9, -0.2, 0)), False)
sketch8.addGeometry(Part.LineSegment(V(1.9, -0.2, 0), V(1.9, 0.2, 0)), False)
sketch8.addGeometry(Part.LineSegment(V(1.9, 0.2, 0), V(0.2, 0.2, 0)), False)
sketch8.addConstraint(Sketcher.Constraint("Coincident", 0, 2, 1, 1))
sketch8.addConstraint(Sketcher.Constraint("Coincident", 1, 2, 2, 1))
sketch8.addConstraint(Sketcher.Constraint("Coincident", 2, 2, 3, 1))
sketch8.addConstraint(Sketcher.Constraint("Coincident", 3, 2, 4, 1))
sketch8.addConstraint(Sketcher.Constraint("Coincident", 4, 2, 5, 1))
sketch8.addConstraint(Sketcher.Constraint("Coincident", 5, 2, 6, 1))
sketch8.addConstraint(Sketcher.Constraint("Coincident", 6, 2, 7, 1))
sketch8.addConstraint(Sketcher.Constraint("Coincident", 7, 2, 8, 1))
sketch8.addConstraint(Sketcher.Constraint("Coincident", 8, 2, 9, 1))
sketch8.addConstraint(Sketcher.Constraint("Coincident", 9, 2, 10, 1))
sketch8.addConstraint(Sketcher.Constraint("Coincident", 10, 2, 11, 1))
sketch8.addConstraint(Sketcher.Constraint("Coincident", 11, 2, 0, 1))
sketch8.addConstraint(Sketcher.Constraint("Vertical", 0))
sketch8.addConstraint(Sketcher.Constraint("Horizontal", 1))
sketch8.addConstraint(Sketcher.Constraint("Vertical", 2))
sketch8.addConstraint(Sketcher.Constraint("Horizontal", 3))
sketch8.addConstraint(Sketcher.Constraint("Vertical", 4))
sketch8.addConstraint(Sketcher.Constraint("Horizontal", 5))
sketch8.addConstraint(Sketcher.Constraint("Vertical", 6))
sketch8.addConstraint(Sketcher.Constraint("Horizontal", 7))
sketch8.addConstraint(Sketcher.Constraint("Vertical", 8))
sketch8.addConstraint(Sketcher.Constraint("Horizontal", 9))
sketch8.addConstraint(Sketcher.Constraint("Vertical", 10))
sketch8.addConstraint(Sketcher.Constraint("Horizontal", 11))
sketch8.addConstraint(Sketcher.Constraint("Symmetric", 0, 2, 6, 2, -1, 1))
sketch8.addConstraint(Sketcher.Constraint("Symmetric", 2, 2, 8, 2, -1, 1))
sketch8.addConstraint(Sketcher.Constraint("Symmetric", 4, 2, 10, 2, -1, 1))
sketch8.addConstraint(Sketcher.Constraint("Symmetric", 5, 2, 8, 2, -2))
sketch8.addConstraint(Sketcher.Constraint("Equal", 11, 0))
sketch8.addConstraint(Sketcher.Constraint("Equal", 7, 4))
sketch8.addConstraint(Sketcher.Constraint("DistanceX", 1, 2, 1, 1, 0.5))
sketch8.addConstraint(Sketcher.Constraint("DistanceX", 3, 2, 3, 1, 1.625))
pad7 = body8.newObject("PartDesign::Pad", "Pad006")
pad7.Profile = sketch8
pad7.Length = 1.75
pad7.Reversed = True
doc.recompute()

boolean = body7.newObject("PartDesign::Boolean", "Boolean")
boolean.Type = "Cut"
boolean.addObjects([body8])
body9 = doc.addObject("PartDesign::Body", "Body008")

# Sketch on XY plane
sketch9 = body9.newObject("Sketcher::SketchObject", "Sketch008")
sketch9.AttachmentSupport = (doc.getObject("XY_Plane008"), [""])
sketch9.MapMode = "FlatFace"
sketch9.AttachmentOffset = App.Placement(V(0, 0, -3.75), App.Rotation())
sketch9.addGeometry(Part.LineSegment(V(0.2, -0.2, 0), V(0.2, -1.9, 0)), False)
sketch9.addGeometry(Part.LineSegment(V(0.2, -1.9, 0), V(-0.2, -1.9, 0)), False)
sketch9.addGeometry(Part.LineSegment(V(-0.2, -1.9, 0), V(-0.2, -0.2, 0)), False)
sketch9.addGeometry(Part.LineSegment(V(-0.2, -0.2, 0), V(-1.9, -0.2, 0)), False)
sketch9.addGeometry(Part.LineSegment(V(-1.9, -0.2, 0), V(-1.9, 0.2, 0)), False)
sketch9.addGeometry(Part.LineSegment(V(-1.9, 0.2, 0), V(-0.2, 0.2, 0)), False)
sketch9.addGeometry(Part.LineSegment(V(-0.2, 0.2, 0), V(-0.2, 1.9, 0)), False)
sketch9.addGeometry(Part.LineSegment(V(-0.2, 1.9, 0), V(0.2, 1.9, 0)), False)
sketch9.addGeometry(Part.LineSegment(V(0.2, 1.9, 0), V(0.2, 0.2, 0)), False)
sketch9.addGeometry(Part.LineSegment(V(0.2, 0.2, 0), V(1.9, 0.2, 0)), False)
sketch9.addGeometry(Part.LineSegment(V(1.9, 0.2, 0), V(1.9, -0.2, 0)), False)
sketch9.addGeometry(Part.LineSegment(V(1.9, -0.2, 0), V(0.2, -0.2, 0)), False)
sketch9.addConstraint(Sketcher.Constraint("Coincident", 0, 2, 1, 1))
sketch9.addConstraint(Sketcher.Constraint("Coincident", 1, 2, 2, 1))
sketch9.addConstraint(Sketcher.Constraint("Coincident", 2, 2, 3, 1))
sketch9.addConstraint(Sketcher.Constraint("Coincident", 3, 2, 4, 1))
sketch9.addConstraint(Sketcher.Constraint("Coincident", 4, 2, 5, 1))
sketch9.addConstraint(Sketcher.Constraint("Coincident", 5, 2, 6, 1))
sketch9.addConstraint(Sketcher.Constraint("Coincident", 6, 2, 7, 1))
sketch9.addConstraint(Sketcher.Constraint("Coincident", 7, 2, 8, 1))
sketch9.addConstraint(Sketcher.Constraint("Coincident", 8, 2, 9, 1))
sketch9.addConstraint(Sketcher.Constraint("Coincident", 9, 2, 10, 1))
sketch9.addConstraint(Sketcher.Constraint("Coincident", 10, 2, 11, 1))
sketch9.addConstraint(Sketcher.Constraint("Coincident", 11, 2, 0, 1))
sketch9.addConstraint(Sketcher.Constraint("Vertical", 0))
sketch9.addConstraint(Sketcher.Constraint("Horizontal", 1))
sketch9.addConstraint(Sketcher.Constraint("Vertical", 2))
sketch9.addConstraint(Sketcher.Constraint("Horizontal", 3))
sketch9.addConstraint(Sketcher.Constraint("Vertical", 4))
sketch9.addConstraint(Sketcher.Constraint("Horizontal", 5))
sketch9.addConstraint(Sketcher.Constraint("Vertical", 6))
sketch9.addConstraint(Sketcher.Constraint("Horizontal", 7))
sketch9.addConstraint(Sketcher.Constraint("Vertical", 8))
sketch9.addConstraint(Sketcher.Constraint("Horizontal", 9))
sketch9.addConstraint(Sketcher.Constraint("Vertical", 10))
sketch9.addConstraint(Sketcher.Constraint("Horizontal", 11))
sketch9.addConstraint(Sketcher.Constraint("Symmetric", 0, 2, 6, 2, -1, 1))
sketch9.addConstraint(Sketcher.Constraint("Symmetric", 2, 2, 8, 2, -1, 1))
sketch9.addConstraint(Sketcher.Constraint("Symmetric", 4, 2, 10, 2, -1, 1))
sketch9.addConstraint(Sketcher.Constraint("Symmetric", 5, 2, 8, 2, -2))
sketch9.addConstraint(Sketcher.Constraint("Equal", 11, 0))
sketch9.addConstraint(Sketcher.Constraint("Equal", 7, 4))
sketch9.addConstraint(Sketcher.Constraint("DistanceX", 1, 2, 1, 1, 0.5))
sketch9.addConstraint(Sketcher.Constraint("DistanceX", 3, 2, 3, 1, 1.625))
pad8 = body9.newObject("PartDesign::Pad", "Pad007")
pad8.Profile = sketch9
pad8.Length = 1.75
doc.recompute()

boolean2 = body7.newObject("PartDesign::Boolean", "Boolean001")
boolean2.Type = "Cut"
boolean2.addObjects([body9])

doc.recompute()
